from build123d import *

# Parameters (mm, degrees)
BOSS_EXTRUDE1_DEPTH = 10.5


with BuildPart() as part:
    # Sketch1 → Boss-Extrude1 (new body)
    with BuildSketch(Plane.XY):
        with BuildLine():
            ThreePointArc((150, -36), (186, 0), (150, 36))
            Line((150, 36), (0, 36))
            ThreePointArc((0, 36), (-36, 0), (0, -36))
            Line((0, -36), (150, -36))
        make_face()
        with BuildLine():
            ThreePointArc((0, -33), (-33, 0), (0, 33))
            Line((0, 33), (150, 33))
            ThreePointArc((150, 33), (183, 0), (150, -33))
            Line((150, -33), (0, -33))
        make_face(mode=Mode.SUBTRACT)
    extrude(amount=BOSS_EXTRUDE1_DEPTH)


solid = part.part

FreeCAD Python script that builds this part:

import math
import FreeCAD as App
import Part
import Sketcher

V = App.Vector

doc = App.newDocument("Part")
body = doc.addObject("PartDesign::Body", "Body")

# Sketch on XY plane
sketch1 = body.newObject("Sketcher::SketchObject", "Sketch")
sketch1.AttachmentSupport = (doc.getObject("XY_Plane"), [""])
sketch1.MapMode = "FlatFace"
sketch1.addGeometry(Part.ArcOfCircle(Part.Circle(V(150, 0, 0), V(0, 0, 1), 36), math.radians(-90), math.radians(90)), False)
sketch1.addGeometry(Part.LineSegment(V(150, 36, 0), V(0, 36, 0)), False)
sketch1.addGeometry(Part.ArcOfCircle(Part.Circle(V(0, 0, 0), V(0, 0, 1), 36), math.radians(90), math.radians(270)), False)
sketch1.addGeometry(Part.LineSegment(V(0, -36, 0), V(150, -36, 0)), False)
sketch1.addGeometry(Part.LineSegment(V(150, -33, 0), V(0, -33, 0)), False)
sketch1.addGeometry(Part.ArcOfCircle(Part.Circle(V(0, 0, 0), V(0, 0, 1), 33), math.radians(90), math.radians(270)), False)
sketch1.addGeometry(Part.LineSegment(V(0, 33, 0), V(150, 33, 0)), False)
sketch1.addGeometry(Part.ArcOfCircle(Part.Circle(V(150, 0, 0), V(0, 0, 1), 33), math.radians(-90), math.radians(90)), False)
sketch1.addConstraint(Sketcher.Constraint("Tangent", 0, 2, 1, 1))
sketch1.addConstraint(Sketcher.Constraint("Tangent", 1, 2, 2, 1))
sketch1.addConstraint(Sketcher.Constraint("Tangent", 2, 2, 3, 1))
sketch1.addConstraint(Sketcher.Constraint("Tangent", 3, 2, 0, 1))
sketch1.addConstraint(Sketcher.Constraint("Tangent", 4, 2, 5, 2))
sketch1.addConstraint(Sketcher.Constraint("Tangent", 5, 1, 6, 1))
sketch1.addConstraint(Sketcher.Constraint("Tangent", 6, 2, 7, 2))
sketch1.addConstraint(Sketcher.Constraint("Tangent", 7, 1, 4, 1))
sketch1.addConstraint(Sketcher.Constraint("Horizontal", 1))
sketch1.addConstraint(Sketcher.Constraint("Horizontal", 3))
sketch1.addConstraint(Sketcher.Constraint("Horizontal", 4))
sketch1.addConstraint(Sketcher.Constraint("Horizontal", 6))
sketch1.addConstraint(Sketcher.Constraint("Coincident", 2, 3, -1, 1))
sketch1.addConstraint(Sketcher.Constraint("Coincident", 5, 3, -1, 1))
sketch1.addConstraint(Sketcher.Constraint("Vertical", 7, 3, 0, 2))
sketch1.addConstraint(Sketcher.Constraint("Radius", 0, 36.0))
sketch1.addConstraint(Sketcher.Constraint("Radius", 5, 33.0))
sketch1.addConstraint(Sketcher.Constraint("DistanceX", 1, 2, 1, 1, 150.0))
pad1 = body.newObject("PartDesign::Pad", "Pad")
pad1.Profile = sketch1
pad1.Length = 10.5

doc.recompute()
